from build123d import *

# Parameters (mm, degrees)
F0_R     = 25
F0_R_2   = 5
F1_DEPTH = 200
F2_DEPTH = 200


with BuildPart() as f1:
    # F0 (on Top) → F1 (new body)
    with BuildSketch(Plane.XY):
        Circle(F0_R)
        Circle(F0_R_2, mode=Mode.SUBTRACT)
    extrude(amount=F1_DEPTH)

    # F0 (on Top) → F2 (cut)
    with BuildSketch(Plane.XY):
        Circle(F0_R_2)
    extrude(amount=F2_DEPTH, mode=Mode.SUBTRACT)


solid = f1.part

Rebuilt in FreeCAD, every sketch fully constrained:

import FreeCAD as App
import Part
import Sketcher

doc = App.newDocument("Part")
body = doc.addObject("PartDesign::Body", "Body")

sketch1 = doc.addObject("Sketcher::SketchObject", "Sketch")
body.addObject(sketch1)
sketch1.AttachmentSupport = (doc.XY_Plane, [""])
sketch1.MapMode = "FlatFace"
sketch1.addGeometry([
    Part.Circle(App.Vector(0, 0, 0), App.Vector(0, 0, 1), 25),
    Part.Circle(App.Vector(0, 0, 0), App.Vector(0, 0, 1), 5),
], False)
sketch1.addConstraint([
    Sketcher.Constraint("Coincident", 0, 3, -1, 1),
    Sketcher.Constraint("Coincident", 1, 3, -1, 1),
    Sketcher.Constraint("Diameter", 0, 50.0),
    Sketcher.Constraint("Diameter", 1, 10.0),
])
pad1 = doc.addObject("PartDesign::Pad", "Pad")
body.addObject(pad1)
pad1.Profile = sketch1
pad1.Length = 200

sketch2 = doc.addObject("Sketcher::SketchObject", "Sketch001")
body.addObject(sketch2)
sketch2.AttachmentSupport = (doc.XY_Plane, [""])
sketch2.MapMode = "FlatFace"
sketch2.addGeometry(Part.Circle(App.Vector(0, 0, 0), App.Vector(0, 0, 1), 5), False)
sketch2.addConstraint([
    Sketcher.Constraint("Coincident", 0, 3, -1, 1),
    Sketcher.Constraint("Diameter", 0, 10.0),
])
pocket1 = doc.addObject("PartDesign::Pocket", "Pocket")
body.addObject(pocket1)
pocket1.Profile = sketch2
pocket1.Length = 200
pocket1.Reversed = True

doc.recompute()
